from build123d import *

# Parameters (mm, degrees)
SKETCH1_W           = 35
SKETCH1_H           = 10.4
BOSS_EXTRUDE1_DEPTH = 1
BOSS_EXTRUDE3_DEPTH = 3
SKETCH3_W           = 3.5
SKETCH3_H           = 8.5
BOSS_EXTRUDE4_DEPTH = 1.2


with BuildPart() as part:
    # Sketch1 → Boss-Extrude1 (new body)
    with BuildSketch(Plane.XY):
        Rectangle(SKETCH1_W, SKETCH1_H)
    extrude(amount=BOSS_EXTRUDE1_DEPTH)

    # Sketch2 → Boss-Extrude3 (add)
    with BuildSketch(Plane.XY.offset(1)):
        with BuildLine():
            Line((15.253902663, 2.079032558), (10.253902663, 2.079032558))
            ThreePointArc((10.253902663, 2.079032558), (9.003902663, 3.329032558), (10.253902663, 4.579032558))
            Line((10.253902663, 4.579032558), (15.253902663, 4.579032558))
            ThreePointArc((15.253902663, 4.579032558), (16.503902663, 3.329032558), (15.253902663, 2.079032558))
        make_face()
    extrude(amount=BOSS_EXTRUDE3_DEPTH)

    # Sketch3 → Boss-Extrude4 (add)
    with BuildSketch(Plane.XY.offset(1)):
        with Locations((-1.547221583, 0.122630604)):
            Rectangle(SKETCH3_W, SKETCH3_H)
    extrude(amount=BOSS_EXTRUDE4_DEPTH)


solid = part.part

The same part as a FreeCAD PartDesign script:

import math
import FreeCAD as App
import Part
import Sketcher

V = App.Vector

doc = App.newDocument("Part")
body = doc.addObject("PartDesign::Body", "Body")

# Sketch on XY plane
sketch1 = body.newObject("Sketcher::SketchObject", "Sketch")
sketch1.AttachmentSupport = (doc.getObject("XY_Plane"), [""])
sketch1.MapMode = "FlatFace"
sketch1.addGeometry([
    Part.LineSegment(V(-18, 5, 0), V(-18, -5, 0)),
    Part.LineSegment(V(-18, -5, 0), V(18, -5, 0)),
    Part.LineSegment(V(18, -5, 0), V(18, 5, 0)),
    Part.LineSegment(V(18, 5, 0), V(-18, 5, 0)),
], False)
sketch1.addConstraint([
    Sketcher.Constraint("Coincident", 0, 2, 1, 1),
    Sketcher.Constraint("Coincident", 1, 2, 2, 1),
    Sketcher.Constraint("Coincident", 2, 2, 3, 1),
    Sketcher.Constraint("Coincident", 3, 2, 0, 1),
    Sketcher.Constraint("Vertical", 0),
    Sketcher.Constraint("Horizontal", 1),
    Sketcher.Constraint("Vertical", 2),
    Sketcher.Constraint("Horizontal", 3),
    Sketcher.Constraint("Symmetric", 0, 2, 2, 2, -1, 1),
    Sketcher.Constraint("DistanceX", 1, 1, 1, 2, 35.0),
    Sketcher.Constraint("DistanceY", 0, 2, 0, 1, 10.4),
])
pad1 = body.newObject("PartDesign::Pad", "Pad")
pad1.Profile = sketch1
pad1.Length = 1

# Sketch on XY plane
sketch2 = body.newObject("Sketcher::SketchObject", "Sketch001")
sketch2.AttachmentSupport = (doc.getObject("XY_Plane"), [""])
sketch2.MapMode = "FlatFace"
sketch2.AttachmentOffset = App.Placement(V(0, 0, 1), App.Rotation())
sketch2.addGeometry([
    Part.LineSegment(V(10.3, 2.1, 0), V(15.3, 2.1, 0)),
    Part.ArcOfCircle(Part.Circle(V(15.3, 3.3, 0), V(0, 0, 1), 1.2), math.radians(-90), math.radians(90)),
    Part.LineSegment(V(15.3, 4.6, 0), V(10.3, 4.6, 0)),
    Part.ArcOfCircle(Part.Circle(V(10.3, 3.3, 0), V(0, 0, 1), 1.2), math.radians(90), math.radians(270)),
], False)
sketch2.addConstraint([
    Sketcher.Constraint("Tangent", 0, 2, 1, 1),
    Sketcher.Constraint("Tangent", 1, 2, 2, 1),
    Sketcher.Constraint("Tangent", 2, 2, 3, 1),
    Sketcher.Constraint("Tangent", 3, 2, 0, 1),
    Sketcher.Constraint("Horizontal", 0),
    Sketcher.Constraint("Horizontal", 2),
    Sketcher.Constraint("DistanceX", 0, 1, 0, 2, 5.0),
    Sketcher.Constraint("Radius", 1, 1.25),
    Sketcher.Constraint("DistanceX", -1, 1, 1, 3, 15.253903),
    Sketcher.Constraint("DistanceY", -1, 1, 1, 3, 3.329033),
])
pad2 = body.newObject("PartDesign::Pad", "Pad001")
pad2.Profile = sketch2
pad2.Length = 3

# Sketch on XY plane
sketch3 = body.newObject("Sketcher::SketchObject", "Sketch002")
sketch3.AttachmentSupport = (doc.getObject("XY_Plane"), [""])
sketch3.MapMode = "FlatFace"
sketch3.AttachmentOffset = App.Placement(V(0, 0, 1), App.Rotation())
sketch3.addGeometry([
    Part.LineSegment(V(-3.3, 4.4, 0), V(-3.3, -4.1, 0)),
    Part.LineSegment(V(-3.3, -4.1, 0), V(0.2, -4.1, 0)),
    Part.LineSegment(V(0.2, -4.1, 0), V(0.2, 4.4, 0)),
    Part.LineSegment(V(0.2, 4.4, 0), V(-3.3, 4.4, 0)),
], False)
sketch3.addConstraint([
    Sketcher.Constraint("Coincident", 0, 2, 1, 1),
    Sketcher.Constraint("Coincident", 1, 2, 2, 1),
    Sketcher.Constraint("Coincident", 2, 2, 3, 1),
    Sketcher.Constraint("Coincident", 3, 2, 0, 1),
    Sketcher.Constraint("Vertical", 0),
    Sketcher.Constraint("Horizontal", 1),
    Sketcher.Constraint("Vertical", 2),
    Sketcher.Constraint("Horizontal", 3),
    Sketcher.Constraint("DistanceX", 1, 1, 1, 2, 3.5),
    Sketcher.Constraint("DistanceY", 0, 2, 0, 1, 8.5),
    Sketcher.Constraint("DistanceX", 0, 2, -1, 1, 3.297222),
    Sketcher.Constraint("DistanceY", 0, 2, -1, 1, 4.127369),
])
pad3 = body.newObject("PartDesign::Pad", "Pad002")
pad3.Profile = sketch3
pad3.Length = 1.2

doc.recompute()
